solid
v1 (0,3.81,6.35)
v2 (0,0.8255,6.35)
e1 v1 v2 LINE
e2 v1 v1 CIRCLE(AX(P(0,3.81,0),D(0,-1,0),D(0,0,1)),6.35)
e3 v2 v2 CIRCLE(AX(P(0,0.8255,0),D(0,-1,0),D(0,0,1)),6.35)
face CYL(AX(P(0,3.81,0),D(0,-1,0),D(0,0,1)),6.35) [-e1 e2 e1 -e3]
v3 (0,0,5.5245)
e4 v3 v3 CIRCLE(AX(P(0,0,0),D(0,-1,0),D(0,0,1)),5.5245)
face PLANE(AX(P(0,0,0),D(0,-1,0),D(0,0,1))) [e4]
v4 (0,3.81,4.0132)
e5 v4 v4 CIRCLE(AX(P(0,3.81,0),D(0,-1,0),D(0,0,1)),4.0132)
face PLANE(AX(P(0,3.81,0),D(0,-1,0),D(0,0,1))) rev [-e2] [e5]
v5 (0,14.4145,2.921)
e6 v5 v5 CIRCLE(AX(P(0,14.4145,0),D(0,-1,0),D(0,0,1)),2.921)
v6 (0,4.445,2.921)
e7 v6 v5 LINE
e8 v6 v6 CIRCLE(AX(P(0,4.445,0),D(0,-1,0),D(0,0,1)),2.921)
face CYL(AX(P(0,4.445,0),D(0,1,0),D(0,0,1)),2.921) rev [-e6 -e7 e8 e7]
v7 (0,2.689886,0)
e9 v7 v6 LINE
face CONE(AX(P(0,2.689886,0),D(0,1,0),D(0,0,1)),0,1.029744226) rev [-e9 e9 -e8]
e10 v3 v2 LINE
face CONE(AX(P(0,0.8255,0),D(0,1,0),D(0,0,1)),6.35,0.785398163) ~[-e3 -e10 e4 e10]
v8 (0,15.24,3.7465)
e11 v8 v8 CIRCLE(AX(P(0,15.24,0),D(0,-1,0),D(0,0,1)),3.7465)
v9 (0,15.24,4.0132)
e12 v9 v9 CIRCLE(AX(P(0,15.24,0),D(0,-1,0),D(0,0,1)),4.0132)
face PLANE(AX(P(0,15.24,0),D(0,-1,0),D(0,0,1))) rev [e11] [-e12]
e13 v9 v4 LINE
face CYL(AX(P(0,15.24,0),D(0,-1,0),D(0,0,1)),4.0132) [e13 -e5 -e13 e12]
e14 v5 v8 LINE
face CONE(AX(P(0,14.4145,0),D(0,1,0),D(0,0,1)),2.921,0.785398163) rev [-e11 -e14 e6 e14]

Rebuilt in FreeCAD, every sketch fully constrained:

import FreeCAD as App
import Part
import Sketcher
Q = App.Units.Quantity


def edges_at(feature, points):
    """Names of the edges that pass closest to the given points."""
    edges = feature.Shape.Edges
    near = lambda p: min(range(len(edges)), key=lambda i: edges[i].distToShape(Part.Vertex(*p))[0])
    return sorted({f"Edge{near(p) + 1}" for p in points})


def add_polygon(sketch, points):
    """Adds a closed chain of lines whose ends are joined by coincident constraints."""
    first, n = sketch.GeometryCount, len(points)
    for a, b in zip(points, points[1:] + points[:1]):
        sketch.addGeometry(Part.LineSegment(App.Vector(*a, 0), App.Vector(*b, 0)), False)
    for i in range(n):
        sketch.addConstraint(Sketcher.Constraint("Coincident", first + i, 2, first + (i + 1) % n, 1))

doc = App.newDocument("Part")
params = doc.addObject("Spreadsheet::Sheet", "Params")
for row, (alias, value) in enumerate([
    ("sketch1_width", "0.45 in"),
    ("sketch1_width2", "0.15 in"),
    ("sketch1_height", "0.25 in"),
    ("sketch1_width3", "0.425 in"),
    ("sketch1_height2", "0.043 in"),
    ("revolution_angle", "360 deg"),
    ("chamfer_size", "0.0325 in"),
], start=1):
    params.set(f"A{row}", alias)
    params.set(f"B{row}", "=" + value)
    params.setAlias(f"B{row}", alias)

body = doc.addObject("PartDesign::Body", "Body")

# Sketch on YZ plane
sketch1 = doc.addObject("Sketcher::SketchObject", "Sketch")
body.addObject(sketch1)
sketch1.AttachmentSupport = (doc.YZ_Plane, [""])
sketch1.MapMode = "FlatFace"
add_polygon(sketch1, [(0, 6.3), (0, 0), (2.7, 0), (4.4, 2.9), (15.2, 2.9), (15.2, 4), (3.8, 4), (3.8, 6.3)])  # lines 0-7
sketch1.addConstraint([
    Sketcher.Constraint("Vertical", 0),
    Sketcher.Constraint("Horizontal", 1),
    Sketcher.Constraint("Horizontal", 3),
    Sketcher.Constraint("Vertical", 4),
    Sketcher.Constraint("Horizontal", 5),
    Sketcher.Constraint("Vertical", 6),
    Sketcher.Constraint("Horizontal", 7),
    Sketcher.Constraint("Coincident", 0, 2, -1, 1),
    Sketcher.Constraint("Angle", 2, Q("58.999998 deg")),
    Sketcher.Constraint("DistanceX", 5, 2, 5, 1, Q("0.45 in")),
    Sketcher.Constraint("DistanceX", 7, 2, 7, 1, Q("0.15 in")),
    Sketcher.Constraint("DistanceY", 0, 2, 0, 1, Q("0.25 in")),
    Sketcher.Constraint("DistanceX", 3, 1, 3, 2, Q("0.425 in")),
    Sketcher.Constraint("DistanceY", 4, 1, 4, 2, Q("0.043 in")),
    Sketcher.Constraint("DistanceY", 6, 1, 6, 2, Q("0.092 in")),
])
sketch1.setExpression("Constraints[17]", "Params.sketch1_width")
sketch1.setExpression("Constraints[18]", "Params.sketch1_width2")
sketch1.setExpression("Constraints[19]", "Params.sketch1_height")
sketch1.setExpression("Constraints[20]", "Params.sketch1_width3")
sketch1.setExpression("Constraints[21]", "Params.sketch1_height2")
revolution = doc.addObject("PartDesign::Revolution", "Revolution")
body.addObject(revolution)
revolution.Profile = sketch1
revolution.ReferenceAxis = (sketch1, ["H_Axis"])
revolution.setExpression("Angle", "Params.revolution_angle")
doc.recompute()

chamfer = doc.addObject("PartDesign::Chamfer", "Chamfer")
body.addObject(chamfer)
chamfer.Base = (revolution, edges_at(revolution, [(0, 15.24, -2.921), (0, 0, -6.35)]))
chamfer.setExpression("Size", "Params.chamfer_size")

doc.recompute()
